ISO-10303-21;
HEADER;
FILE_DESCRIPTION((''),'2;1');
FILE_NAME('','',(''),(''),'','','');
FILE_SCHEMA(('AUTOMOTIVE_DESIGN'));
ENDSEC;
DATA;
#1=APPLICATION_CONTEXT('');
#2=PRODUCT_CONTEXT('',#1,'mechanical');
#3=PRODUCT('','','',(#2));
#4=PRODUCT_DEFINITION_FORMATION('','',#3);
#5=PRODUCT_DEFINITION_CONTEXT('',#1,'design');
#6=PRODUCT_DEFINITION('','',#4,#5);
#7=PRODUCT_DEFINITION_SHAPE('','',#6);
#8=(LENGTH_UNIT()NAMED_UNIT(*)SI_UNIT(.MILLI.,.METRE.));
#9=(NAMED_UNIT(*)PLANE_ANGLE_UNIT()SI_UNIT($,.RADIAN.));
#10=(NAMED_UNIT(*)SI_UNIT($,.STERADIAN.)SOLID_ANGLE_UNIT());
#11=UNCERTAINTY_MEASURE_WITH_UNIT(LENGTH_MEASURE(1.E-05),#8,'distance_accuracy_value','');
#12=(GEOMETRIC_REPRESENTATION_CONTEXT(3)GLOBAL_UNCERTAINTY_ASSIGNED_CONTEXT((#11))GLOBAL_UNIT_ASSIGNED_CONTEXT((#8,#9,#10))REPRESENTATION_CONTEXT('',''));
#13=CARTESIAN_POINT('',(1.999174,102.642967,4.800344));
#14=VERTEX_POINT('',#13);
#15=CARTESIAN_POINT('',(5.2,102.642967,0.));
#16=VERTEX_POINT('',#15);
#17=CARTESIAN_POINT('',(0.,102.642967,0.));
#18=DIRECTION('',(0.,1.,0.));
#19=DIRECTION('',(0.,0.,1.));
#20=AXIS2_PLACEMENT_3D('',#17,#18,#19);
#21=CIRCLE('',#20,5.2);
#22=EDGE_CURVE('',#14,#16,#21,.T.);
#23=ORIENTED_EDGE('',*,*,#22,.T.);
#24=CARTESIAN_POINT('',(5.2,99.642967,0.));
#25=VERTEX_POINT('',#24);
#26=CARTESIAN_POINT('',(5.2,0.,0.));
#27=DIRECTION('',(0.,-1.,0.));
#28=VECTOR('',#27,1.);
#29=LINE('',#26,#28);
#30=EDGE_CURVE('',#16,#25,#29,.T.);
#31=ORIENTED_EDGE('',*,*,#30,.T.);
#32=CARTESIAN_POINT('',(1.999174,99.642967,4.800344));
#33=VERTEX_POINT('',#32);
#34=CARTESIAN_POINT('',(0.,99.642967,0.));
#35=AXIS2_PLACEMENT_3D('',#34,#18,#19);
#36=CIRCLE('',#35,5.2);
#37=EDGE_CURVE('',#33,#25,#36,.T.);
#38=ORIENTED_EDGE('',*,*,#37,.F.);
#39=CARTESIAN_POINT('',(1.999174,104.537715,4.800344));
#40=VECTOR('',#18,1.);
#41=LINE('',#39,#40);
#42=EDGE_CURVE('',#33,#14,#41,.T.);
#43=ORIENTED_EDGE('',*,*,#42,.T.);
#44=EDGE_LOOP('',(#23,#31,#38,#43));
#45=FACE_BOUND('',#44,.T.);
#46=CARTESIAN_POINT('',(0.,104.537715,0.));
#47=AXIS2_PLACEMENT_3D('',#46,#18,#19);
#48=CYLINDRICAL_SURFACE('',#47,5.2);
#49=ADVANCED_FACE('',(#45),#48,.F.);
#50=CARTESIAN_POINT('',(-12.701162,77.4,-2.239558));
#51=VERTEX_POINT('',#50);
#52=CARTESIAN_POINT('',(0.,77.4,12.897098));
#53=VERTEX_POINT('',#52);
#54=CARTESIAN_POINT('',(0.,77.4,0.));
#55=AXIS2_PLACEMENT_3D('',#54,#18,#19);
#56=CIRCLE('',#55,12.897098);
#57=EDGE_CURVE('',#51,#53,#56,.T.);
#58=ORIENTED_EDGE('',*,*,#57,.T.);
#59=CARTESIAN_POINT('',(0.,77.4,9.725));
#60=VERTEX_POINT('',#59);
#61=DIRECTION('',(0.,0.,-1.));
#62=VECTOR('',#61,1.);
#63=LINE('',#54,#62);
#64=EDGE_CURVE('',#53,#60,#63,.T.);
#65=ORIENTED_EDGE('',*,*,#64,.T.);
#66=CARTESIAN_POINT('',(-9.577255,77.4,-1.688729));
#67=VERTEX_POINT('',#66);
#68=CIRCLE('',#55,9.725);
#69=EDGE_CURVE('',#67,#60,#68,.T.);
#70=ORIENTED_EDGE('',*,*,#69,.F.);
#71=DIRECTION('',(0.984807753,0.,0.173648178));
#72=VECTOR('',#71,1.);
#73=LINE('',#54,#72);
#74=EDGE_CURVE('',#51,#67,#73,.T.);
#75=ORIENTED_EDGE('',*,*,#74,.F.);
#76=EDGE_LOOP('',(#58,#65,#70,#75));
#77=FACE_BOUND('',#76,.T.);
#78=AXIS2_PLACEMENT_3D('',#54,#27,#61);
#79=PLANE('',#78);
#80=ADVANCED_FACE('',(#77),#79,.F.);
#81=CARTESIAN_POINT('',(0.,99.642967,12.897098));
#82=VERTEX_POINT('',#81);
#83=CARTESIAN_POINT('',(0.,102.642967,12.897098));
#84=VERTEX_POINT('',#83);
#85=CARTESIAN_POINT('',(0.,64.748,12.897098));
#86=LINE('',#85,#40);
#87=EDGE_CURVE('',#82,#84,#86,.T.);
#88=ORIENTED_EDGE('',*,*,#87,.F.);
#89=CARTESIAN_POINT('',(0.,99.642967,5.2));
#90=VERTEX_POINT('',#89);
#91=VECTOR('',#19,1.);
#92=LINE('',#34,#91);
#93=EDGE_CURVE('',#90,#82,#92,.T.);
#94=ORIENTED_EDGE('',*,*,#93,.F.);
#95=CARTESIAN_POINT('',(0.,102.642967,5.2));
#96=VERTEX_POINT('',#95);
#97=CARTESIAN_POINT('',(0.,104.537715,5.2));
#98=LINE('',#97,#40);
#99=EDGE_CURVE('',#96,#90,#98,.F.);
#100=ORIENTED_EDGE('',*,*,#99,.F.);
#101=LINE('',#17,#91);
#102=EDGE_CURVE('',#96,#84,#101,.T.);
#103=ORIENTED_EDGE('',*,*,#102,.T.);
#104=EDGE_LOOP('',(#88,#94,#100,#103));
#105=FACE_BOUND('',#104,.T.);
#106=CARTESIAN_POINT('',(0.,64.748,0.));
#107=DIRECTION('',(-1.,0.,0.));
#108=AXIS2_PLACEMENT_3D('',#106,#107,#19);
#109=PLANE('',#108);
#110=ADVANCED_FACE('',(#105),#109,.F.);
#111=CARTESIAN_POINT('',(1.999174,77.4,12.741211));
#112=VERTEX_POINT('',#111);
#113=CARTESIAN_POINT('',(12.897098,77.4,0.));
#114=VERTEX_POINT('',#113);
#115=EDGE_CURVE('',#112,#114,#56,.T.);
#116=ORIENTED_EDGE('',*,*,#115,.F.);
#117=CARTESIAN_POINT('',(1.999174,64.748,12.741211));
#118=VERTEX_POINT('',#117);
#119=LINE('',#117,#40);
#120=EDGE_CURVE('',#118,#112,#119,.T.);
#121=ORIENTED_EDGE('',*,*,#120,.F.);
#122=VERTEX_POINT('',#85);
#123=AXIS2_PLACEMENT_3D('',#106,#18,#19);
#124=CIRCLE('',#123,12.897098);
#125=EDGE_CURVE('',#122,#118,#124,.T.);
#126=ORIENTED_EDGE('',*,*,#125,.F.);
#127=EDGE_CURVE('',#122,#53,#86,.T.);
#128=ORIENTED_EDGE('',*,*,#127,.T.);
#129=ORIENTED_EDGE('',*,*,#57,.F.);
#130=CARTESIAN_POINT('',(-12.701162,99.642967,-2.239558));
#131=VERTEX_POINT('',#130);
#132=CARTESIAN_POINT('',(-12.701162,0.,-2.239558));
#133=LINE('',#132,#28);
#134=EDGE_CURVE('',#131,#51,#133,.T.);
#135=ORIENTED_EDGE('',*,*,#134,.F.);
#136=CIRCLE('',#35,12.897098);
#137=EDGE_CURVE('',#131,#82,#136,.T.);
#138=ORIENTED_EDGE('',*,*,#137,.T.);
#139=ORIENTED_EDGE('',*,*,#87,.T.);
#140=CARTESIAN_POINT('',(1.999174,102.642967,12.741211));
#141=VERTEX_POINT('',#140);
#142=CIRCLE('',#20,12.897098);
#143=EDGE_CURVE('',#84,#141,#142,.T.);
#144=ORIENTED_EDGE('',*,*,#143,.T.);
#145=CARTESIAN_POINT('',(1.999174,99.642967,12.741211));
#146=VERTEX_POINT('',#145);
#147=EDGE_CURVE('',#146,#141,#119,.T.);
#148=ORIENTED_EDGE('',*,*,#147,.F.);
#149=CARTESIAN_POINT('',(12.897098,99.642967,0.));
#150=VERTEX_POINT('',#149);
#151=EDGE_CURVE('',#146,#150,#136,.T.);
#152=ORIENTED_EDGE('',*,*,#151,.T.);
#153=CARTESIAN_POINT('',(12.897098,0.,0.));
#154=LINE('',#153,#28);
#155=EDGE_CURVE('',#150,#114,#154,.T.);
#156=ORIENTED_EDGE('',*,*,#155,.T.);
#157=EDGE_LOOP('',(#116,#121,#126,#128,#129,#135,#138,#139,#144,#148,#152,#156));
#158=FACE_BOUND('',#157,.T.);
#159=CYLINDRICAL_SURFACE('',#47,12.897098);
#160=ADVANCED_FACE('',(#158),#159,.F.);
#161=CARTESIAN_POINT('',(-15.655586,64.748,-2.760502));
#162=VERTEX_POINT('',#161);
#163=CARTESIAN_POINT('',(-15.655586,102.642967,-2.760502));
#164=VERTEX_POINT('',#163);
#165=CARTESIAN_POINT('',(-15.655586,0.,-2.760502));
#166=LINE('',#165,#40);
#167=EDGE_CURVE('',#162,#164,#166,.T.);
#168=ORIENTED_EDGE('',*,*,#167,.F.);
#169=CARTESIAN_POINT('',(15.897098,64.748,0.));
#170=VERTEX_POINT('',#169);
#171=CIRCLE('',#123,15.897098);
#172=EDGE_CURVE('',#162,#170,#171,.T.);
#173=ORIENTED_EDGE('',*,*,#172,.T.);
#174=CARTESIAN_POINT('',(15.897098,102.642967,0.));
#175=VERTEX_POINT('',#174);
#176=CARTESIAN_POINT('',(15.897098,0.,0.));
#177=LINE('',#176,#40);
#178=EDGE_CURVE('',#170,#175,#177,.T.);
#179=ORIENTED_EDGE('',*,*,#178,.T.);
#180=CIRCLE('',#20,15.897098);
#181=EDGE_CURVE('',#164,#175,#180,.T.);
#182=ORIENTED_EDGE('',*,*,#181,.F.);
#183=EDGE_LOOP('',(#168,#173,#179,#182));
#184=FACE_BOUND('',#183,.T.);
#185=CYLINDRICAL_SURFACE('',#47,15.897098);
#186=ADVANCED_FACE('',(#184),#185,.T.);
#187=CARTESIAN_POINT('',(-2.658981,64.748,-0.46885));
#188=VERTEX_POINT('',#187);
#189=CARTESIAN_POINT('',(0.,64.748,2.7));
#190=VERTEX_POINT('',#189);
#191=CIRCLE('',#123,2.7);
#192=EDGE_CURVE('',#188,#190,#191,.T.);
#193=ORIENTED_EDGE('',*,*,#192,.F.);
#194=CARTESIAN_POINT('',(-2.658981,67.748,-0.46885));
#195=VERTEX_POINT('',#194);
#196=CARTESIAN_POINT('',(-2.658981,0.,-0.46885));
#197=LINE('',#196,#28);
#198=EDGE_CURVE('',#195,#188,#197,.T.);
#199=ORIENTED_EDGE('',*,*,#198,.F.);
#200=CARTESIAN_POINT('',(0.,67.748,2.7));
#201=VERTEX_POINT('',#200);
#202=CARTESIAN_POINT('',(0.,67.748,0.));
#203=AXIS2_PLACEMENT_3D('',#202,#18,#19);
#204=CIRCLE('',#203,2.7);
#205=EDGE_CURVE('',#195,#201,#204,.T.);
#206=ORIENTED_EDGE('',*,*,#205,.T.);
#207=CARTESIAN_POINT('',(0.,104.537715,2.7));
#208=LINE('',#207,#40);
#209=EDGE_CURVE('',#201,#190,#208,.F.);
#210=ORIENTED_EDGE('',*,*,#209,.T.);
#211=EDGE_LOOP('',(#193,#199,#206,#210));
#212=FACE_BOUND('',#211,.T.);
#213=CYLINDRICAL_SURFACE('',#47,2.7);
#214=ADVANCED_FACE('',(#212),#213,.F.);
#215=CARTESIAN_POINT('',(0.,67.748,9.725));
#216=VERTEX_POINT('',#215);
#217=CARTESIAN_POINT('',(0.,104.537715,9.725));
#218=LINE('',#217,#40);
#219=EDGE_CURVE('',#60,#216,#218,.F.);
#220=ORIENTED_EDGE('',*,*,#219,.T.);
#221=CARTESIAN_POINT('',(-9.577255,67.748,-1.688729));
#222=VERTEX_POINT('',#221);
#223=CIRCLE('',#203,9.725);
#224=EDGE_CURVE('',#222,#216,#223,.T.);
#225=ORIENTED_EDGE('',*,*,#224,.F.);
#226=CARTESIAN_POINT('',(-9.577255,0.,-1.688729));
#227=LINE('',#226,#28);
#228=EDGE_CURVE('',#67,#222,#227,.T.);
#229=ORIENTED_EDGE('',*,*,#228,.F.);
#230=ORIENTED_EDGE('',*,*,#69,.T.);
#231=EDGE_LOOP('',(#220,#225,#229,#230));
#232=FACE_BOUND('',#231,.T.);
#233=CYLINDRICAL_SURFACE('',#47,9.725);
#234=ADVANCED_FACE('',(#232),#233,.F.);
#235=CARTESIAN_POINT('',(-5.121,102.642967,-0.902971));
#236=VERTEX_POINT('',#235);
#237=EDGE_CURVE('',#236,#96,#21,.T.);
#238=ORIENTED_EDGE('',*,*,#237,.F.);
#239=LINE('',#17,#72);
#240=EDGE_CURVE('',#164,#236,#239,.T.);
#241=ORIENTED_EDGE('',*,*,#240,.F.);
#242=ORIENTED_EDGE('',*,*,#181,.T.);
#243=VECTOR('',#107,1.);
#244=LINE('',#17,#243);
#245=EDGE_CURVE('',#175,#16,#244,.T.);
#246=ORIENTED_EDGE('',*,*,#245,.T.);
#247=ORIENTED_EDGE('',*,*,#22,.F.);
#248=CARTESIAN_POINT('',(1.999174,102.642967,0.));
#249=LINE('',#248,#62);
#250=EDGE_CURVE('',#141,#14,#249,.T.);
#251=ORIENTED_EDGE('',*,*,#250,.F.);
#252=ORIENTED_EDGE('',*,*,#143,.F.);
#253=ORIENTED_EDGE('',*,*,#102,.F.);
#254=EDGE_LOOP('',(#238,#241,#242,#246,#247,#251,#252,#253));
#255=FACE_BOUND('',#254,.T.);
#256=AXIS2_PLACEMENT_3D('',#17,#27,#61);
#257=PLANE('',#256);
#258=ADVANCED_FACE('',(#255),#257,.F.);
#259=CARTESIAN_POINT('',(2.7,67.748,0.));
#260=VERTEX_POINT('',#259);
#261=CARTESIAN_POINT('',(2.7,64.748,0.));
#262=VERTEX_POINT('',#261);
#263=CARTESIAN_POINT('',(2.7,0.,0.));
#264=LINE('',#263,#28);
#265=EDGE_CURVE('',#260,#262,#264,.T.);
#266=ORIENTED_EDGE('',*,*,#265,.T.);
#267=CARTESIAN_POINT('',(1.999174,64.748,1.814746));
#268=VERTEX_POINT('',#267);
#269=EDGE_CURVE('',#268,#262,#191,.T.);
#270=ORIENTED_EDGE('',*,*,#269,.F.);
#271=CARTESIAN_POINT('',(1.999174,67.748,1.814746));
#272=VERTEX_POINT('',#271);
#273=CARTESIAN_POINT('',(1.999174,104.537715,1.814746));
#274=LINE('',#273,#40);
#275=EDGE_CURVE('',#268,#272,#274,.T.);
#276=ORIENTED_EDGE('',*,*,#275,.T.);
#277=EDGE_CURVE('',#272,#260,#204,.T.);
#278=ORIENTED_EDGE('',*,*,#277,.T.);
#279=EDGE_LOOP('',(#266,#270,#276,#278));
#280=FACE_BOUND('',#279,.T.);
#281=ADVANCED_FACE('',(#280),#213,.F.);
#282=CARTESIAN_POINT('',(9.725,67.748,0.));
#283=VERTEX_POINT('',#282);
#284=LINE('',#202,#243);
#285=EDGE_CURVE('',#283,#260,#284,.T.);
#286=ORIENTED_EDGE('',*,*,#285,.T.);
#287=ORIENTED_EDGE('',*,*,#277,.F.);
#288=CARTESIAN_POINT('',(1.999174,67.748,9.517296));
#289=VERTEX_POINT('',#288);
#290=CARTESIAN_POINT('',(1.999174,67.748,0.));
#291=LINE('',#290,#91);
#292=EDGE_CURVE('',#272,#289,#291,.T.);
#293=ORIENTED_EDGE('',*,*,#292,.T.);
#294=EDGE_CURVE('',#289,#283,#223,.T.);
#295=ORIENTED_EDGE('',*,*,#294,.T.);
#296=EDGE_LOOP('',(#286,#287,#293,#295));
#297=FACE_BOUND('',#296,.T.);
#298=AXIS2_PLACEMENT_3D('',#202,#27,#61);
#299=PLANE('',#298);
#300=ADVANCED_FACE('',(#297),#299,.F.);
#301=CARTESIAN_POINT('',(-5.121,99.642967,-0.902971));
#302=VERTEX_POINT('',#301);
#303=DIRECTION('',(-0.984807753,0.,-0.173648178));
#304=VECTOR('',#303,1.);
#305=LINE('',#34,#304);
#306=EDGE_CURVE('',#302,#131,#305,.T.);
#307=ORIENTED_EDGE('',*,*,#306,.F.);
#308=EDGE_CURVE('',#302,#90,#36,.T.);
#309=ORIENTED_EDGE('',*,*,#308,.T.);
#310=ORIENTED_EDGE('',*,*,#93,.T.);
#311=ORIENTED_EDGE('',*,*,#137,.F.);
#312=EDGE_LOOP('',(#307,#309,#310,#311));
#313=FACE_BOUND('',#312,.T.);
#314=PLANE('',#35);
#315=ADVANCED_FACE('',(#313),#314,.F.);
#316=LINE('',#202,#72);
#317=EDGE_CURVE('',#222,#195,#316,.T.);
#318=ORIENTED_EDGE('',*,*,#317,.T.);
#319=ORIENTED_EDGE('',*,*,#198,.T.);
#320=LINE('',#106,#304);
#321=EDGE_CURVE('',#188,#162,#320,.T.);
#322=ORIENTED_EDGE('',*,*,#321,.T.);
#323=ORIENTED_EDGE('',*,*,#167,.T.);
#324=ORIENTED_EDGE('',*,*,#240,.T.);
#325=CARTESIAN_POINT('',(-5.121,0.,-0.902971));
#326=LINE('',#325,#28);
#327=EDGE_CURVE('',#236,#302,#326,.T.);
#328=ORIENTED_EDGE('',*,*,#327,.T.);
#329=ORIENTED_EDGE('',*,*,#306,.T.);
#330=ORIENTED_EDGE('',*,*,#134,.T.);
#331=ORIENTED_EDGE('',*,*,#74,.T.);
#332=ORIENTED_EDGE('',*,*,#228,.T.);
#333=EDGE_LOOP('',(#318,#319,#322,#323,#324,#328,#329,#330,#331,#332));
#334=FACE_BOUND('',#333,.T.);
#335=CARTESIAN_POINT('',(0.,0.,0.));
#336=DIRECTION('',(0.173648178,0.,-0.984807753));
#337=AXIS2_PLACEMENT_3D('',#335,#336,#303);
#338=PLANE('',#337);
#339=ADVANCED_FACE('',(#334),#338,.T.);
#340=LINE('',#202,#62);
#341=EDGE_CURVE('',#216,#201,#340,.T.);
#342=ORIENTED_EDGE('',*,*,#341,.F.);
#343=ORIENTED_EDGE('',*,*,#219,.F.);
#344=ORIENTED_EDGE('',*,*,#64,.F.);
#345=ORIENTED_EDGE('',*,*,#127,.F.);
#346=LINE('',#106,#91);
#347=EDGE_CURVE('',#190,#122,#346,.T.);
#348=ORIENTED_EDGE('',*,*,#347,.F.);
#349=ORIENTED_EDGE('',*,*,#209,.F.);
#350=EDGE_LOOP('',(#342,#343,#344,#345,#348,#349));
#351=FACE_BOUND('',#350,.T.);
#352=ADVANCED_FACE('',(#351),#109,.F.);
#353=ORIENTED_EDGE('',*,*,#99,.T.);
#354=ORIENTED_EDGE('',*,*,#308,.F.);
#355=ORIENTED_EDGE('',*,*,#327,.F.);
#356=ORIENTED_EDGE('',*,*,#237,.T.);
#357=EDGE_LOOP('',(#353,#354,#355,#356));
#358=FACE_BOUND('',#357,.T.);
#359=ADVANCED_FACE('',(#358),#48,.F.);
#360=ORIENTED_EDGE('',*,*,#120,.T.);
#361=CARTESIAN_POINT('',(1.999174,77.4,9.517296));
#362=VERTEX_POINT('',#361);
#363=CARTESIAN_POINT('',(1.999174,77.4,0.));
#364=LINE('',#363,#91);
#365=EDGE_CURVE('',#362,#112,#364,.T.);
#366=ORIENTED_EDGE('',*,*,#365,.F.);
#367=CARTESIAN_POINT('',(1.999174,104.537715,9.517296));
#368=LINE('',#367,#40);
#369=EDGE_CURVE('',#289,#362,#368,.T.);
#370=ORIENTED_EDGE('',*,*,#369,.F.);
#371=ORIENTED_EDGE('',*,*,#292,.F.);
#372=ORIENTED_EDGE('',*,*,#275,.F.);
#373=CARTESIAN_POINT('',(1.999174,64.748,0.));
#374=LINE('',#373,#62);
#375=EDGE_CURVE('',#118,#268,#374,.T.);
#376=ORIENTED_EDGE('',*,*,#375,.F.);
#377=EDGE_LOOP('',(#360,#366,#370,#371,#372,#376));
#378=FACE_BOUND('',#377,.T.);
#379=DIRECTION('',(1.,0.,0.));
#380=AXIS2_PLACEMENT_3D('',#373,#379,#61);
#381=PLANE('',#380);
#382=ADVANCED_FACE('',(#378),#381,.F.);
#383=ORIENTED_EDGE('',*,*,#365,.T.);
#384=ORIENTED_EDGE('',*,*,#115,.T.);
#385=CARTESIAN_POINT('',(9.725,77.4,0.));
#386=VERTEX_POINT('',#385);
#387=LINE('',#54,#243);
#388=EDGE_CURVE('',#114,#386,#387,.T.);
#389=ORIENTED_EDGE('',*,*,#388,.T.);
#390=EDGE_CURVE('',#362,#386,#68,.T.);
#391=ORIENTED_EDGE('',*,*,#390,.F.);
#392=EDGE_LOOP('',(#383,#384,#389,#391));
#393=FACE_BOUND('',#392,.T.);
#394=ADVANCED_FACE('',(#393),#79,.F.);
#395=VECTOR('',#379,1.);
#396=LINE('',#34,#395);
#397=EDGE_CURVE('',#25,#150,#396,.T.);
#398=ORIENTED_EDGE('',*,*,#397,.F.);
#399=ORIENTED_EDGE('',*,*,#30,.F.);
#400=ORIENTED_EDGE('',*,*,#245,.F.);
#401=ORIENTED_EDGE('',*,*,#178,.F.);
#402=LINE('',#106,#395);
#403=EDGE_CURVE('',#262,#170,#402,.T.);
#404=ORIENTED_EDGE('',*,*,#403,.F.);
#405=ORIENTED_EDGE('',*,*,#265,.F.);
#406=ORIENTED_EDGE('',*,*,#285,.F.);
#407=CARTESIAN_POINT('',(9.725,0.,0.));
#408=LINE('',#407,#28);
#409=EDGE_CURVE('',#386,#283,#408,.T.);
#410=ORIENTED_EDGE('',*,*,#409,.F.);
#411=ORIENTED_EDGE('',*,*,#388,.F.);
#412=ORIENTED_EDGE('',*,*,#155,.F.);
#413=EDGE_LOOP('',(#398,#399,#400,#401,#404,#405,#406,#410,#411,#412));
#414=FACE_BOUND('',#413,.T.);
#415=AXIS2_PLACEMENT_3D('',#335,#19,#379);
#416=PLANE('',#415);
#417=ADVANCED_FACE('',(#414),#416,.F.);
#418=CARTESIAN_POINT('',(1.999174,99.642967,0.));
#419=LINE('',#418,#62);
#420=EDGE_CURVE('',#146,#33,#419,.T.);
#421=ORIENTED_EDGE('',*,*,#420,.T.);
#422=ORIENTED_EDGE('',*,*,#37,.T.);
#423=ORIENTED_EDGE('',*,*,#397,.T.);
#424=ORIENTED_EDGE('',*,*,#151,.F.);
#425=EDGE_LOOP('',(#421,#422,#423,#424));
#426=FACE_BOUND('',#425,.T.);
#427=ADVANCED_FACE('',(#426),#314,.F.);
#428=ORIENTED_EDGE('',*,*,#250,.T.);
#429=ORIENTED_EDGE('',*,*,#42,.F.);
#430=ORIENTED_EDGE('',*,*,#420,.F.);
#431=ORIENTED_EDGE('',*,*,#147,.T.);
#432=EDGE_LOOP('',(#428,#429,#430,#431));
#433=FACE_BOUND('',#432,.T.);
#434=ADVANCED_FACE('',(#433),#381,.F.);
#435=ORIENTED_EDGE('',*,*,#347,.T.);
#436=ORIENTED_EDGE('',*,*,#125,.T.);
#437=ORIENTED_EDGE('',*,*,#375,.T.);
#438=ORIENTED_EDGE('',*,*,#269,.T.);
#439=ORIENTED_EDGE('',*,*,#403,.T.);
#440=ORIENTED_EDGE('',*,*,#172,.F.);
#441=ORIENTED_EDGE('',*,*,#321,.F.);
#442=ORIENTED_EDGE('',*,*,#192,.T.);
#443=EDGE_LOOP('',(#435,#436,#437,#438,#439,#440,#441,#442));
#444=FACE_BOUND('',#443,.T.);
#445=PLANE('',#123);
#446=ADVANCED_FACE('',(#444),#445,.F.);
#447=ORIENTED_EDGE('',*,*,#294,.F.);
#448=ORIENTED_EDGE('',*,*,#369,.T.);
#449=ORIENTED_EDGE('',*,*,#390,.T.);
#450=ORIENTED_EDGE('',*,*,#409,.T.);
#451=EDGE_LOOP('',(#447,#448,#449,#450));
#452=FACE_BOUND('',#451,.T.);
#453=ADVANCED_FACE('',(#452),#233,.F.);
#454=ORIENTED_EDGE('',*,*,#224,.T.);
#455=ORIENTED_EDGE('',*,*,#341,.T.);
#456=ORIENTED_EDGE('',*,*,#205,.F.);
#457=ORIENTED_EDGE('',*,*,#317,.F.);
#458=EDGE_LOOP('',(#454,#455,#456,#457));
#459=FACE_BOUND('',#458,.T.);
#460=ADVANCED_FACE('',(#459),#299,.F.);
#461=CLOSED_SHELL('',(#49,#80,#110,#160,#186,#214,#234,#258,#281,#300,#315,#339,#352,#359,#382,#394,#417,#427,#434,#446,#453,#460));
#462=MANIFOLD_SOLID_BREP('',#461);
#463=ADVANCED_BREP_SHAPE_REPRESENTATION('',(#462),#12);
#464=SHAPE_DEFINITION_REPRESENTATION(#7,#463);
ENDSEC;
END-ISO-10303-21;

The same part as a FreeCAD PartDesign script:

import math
import FreeCAD as App
import Part
import Sketcher
Q = App.Units.Quantity

doc = App.newDocument("Part")
params = doc.addObject("Spreadsheet::Sheet", "Params")
for row, (alias, value) in enumerate([
    ("sketch1_height", "3 mm"),
    ("revolution_angle", "190 deg"),
], start=1):
    params.set(f"A{row}", alias)
    params.set(f"B{row}", "=" + value)
    params.setAlias(f"B{row}", alias)

body = doc.addObject("PartDesign::Body", "Body")

# Sketch on XY plane
sketch1 = body.newObject("Sketcher::SketchObject", "Sketch")
sketch1.AttachmentSupport = (doc.getObject("XY_Plane"), [""])
sketch1.MapMode = "FlatFace"
sketch1.addGeometry([
    Part.LineSegment(App.Vector(15.9, 102.6, 0), App.Vector(5.2, 102.6, 0)),  # 0
    Part.LineSegment(App.Vector(5.2, 102.6, 0), App.Vector(5.2, 99.6, 0)),  # 1
    Part.LineSegment(App.Vector(5.2, 99.6, 0), App.Vector(12.9, 99.6, 0)),  # 2
    Part.LineSegment(App.Vector(12.9, 99.6, 0), App.Vector(12.9, 77.4, 0)),  # 3
    Part.LineSegment(App.Vector(12.9, 77.4, 0), App.Vector(9.7, 77.4, 0)),  # 4
    Part.LineSegment(App.Vector(9.7, 77.4, 0), App.Vector(9.7, 67.7, 0)),  # 5
    Part.LineSegment(App.Vector(9.7, 67.7, 0), App.Vector(2.7, 67.7, 0)),  # 6
    Part.LineSegment(App.Vector(2.7, 67.7, 0), App.Vector(2.7, 64.7, 0)),  # 7
    Part.LineSegment(App.Vector(2.7, 64.7, 0), App.Vector(15.9, 64.7, 0)),  # 8
    Part.LineSegment(App.Vector(15.9, 64.7, 0), App.Vector(15.9, 102.6, 0)),  # 9
], False)
sketch1.addConstraint([
    Sketcher.Constraint("Coincident", 0, 2, 1, 1),
    Sketcher.Constraint("Coincident", 1, 2, 2, 1),
    Sketcher.Constraint("Coincident", 2, 2, 3, 1),
    Sketcher.Constraint("Coincident", 3, 2, 4, 1),
    Sketcher.Constraint("Coincident", 4, 2, 5, 1),
    Sketcher.Constraint("Coincident", 5, 2, 6, 1),
    Sketcher.Constraint("Coincident", 6, 2, 7, 1),
    Sketcher.Constraint("Coincident", 7, 2, 8, 1),
    Sketcher.Constraint("Coincident", 8, 2, 9, 1),
    Sketcher.Constraint("Coincident", 9, 2, 0, 1),
    Sketcher.Constraint("Horizontal", 0),
    Sketcher.Constraint("Vertical", 1),
    Sketcher.Constraint("Horizontal", 2),
    Sketcher.Constraint("Vertical", 3),
    Sketcher.Constraint("Horizontal", 4),
    Sketcher.Constraint("Vertical", 5),
    Sketcher.Constraint("Horizontal", 6),
    Sketcher.Constraint("Vertical", 7),
    Sketcher.Constraint("Horizontal", 8),
    Sketcher.Constraint("Vertical", 9),
    Sketcher.Constraint("Equal", 1, 7),
    Sketcher.Constraint("DistanceY", 1, 2, 1, 1, Q("3 mm")),
    Sketcher.Constraint("DistanceX", 3, 2, 8, 2, Q("3 mm")),
    Sketcher.Constraint("DistanceX", -1, 1, 0, 2, Q("5.2 mm")),
    Sketcher.Constraint("DistanceY", -1, 1, 3, 2, Q("77.4 mm")),
    Sketcher.Constraint("DistanceX", -1, 1, 6, 2, Q("2.7 mm")),
    Sketcher.Constraint("DistanceX", 6, 2, 6, 1, Q("7.025 mm")),
    Sketcher.Constraint("DistanceY", 5, 2, 5, 1, Q("9.652 mm")),
    Sketcher.Constraint("DistanceX", 0, 2, 0, 1, Q("10.697098 mm")),
    Sketcher.Constraint("DistanceY", 3, 2, 3, 1, Q("22.242967 mm")),
])
sketch1.setExpression("Constraints[21]", "Params.sketch1_height")
revolution = body.newObject("PartDesign::Revolution", "Revolution")
revolution.Profile = sketch1
revolution.ReferenceAxis = (sketch1, ["V_Axis"])
revolution.setExpression("Angle", "Params.revolution_angle")
revolution.Reversed = True

# Sketch on XZ plane
sketch2 = body.newObject("Sketcher::SketchObject", "Sketch001")
sketch2.AttachmentSupport = (doc.getObject("XZ_Plane"), [""])
sketch2.MapMode = "FlatFace"
sketch2.AttachmentOffset = App.Placement(App.Vector(0, 0, -102.642967), App.Rotation())
sketch2.addGeometry([
    Part.LineSegment(App.Vector(0, 0, 0), App.Vector(0, 12.9, 0)),
    Part.ArcOfCircle(Part.Circle(App.Vector(0, 0, 0), App.Vector(0, 0, 1), 12.9), math.radians(81.08), math.radians(90)),
    Part.LineSegment(App.Vector(2, 12.7, 0), App.Vector(2, 0, 0)),
    Part.LineSegment(App.Vector(2, 0, 0), App.Vector(0, 0, 0)),
], False)
sketch2.addConstraint([
    Sketcher.Constraint("Coincident", 0, 2, 1, 2),
    Sketcher.Constraint("Coincident", 1, 1, 2, 1),
    Sketcher.Constraint("Coincident", 2, 2, 3, 1),
    Sketcher.Constraint("Coincident", 3, 2, 0, 1),
    Sketcher.Constraint("Vertical", 0),
    Sketcher.Constraint("Vertical", 2),
    Sketcher.Constraint("Horizontal", 3),
    Sketcher.Constraint("Coincident", 1, 3, -1, 1),
    Sketcher.Constraint("Coincident", 3, 2, -1, 1),
    Sketcher.Constraint("Radius", 1, Q("12.897098 mm")),
    Sketcher.Constraint("DistanceY", 2, 2, 2, 1, Q("12.741211 mm")),
])
pocket1 = body.newObject("PartDesign::Pocket", "Pocket")
pocket1.Profile = sketch2
pocket1.Type = "ThroughAll"
pocket1.Reversed = True

doc.recompute()
